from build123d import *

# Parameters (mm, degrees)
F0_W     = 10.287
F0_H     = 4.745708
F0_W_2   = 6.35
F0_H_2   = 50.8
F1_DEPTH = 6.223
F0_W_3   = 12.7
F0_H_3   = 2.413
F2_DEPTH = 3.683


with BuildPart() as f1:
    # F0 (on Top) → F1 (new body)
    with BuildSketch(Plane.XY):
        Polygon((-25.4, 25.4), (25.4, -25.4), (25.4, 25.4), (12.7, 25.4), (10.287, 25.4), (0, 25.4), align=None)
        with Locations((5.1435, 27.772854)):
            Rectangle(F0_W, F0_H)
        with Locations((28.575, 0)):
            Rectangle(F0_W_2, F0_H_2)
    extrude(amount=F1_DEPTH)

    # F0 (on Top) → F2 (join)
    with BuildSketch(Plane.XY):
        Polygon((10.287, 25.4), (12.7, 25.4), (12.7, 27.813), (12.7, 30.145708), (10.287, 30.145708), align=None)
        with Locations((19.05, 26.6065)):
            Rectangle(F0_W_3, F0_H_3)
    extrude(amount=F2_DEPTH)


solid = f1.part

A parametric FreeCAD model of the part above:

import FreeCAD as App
import Part
import Sketcher
from FreeCAD import Vector
Q = App.Units.Quantity

doc = App.newDocument("Part")
body = doc.addObject("PartDesign::Body", "Body")

# Sketch on XY plane
sketch1 = body.newObject("Sketcher::SketchObject", "Sketch")
sketch1.AttachmentSupport = (doc.getObject("XY_Plane"), [""])
sketch1.MapMode = "FlatFace"
sketch1.addGeometry(Part.LineSegment(Vector(-25.4, 25.4, 0), Vector(25.4, -25.4, 0)), False)
sketch1.addGeometry(Part.LineSegment(Vector(25.4, -25.4, 0), Vector(31.8, -25.4, 0)), False)
sketch1.addGeometry(Part.LineSegment(Vector(31.8, -25.4, 0), Vector(31.8, 25.4, 0)), False)
sketch1.addGeometry(Part.LineSegment(Vector(31.8, 25.4, 0), Vector(10.3, 25.4, 0)), False)
sketch1.addGeometry(Part.LineSegment(Vector(10.3, 25.4, 0), Vector(10.3, 30.1, 0)), False)
sketch1.addGeometry(Part.LineSegment(Vector(10.3, 30.1, 0), Vector(0, 30.1, 0)), False)
sketch1.addGeometry(Part.LineSegment(Vector(0, 30.1, 0), Vector(0, 25.4, 0)), False)
sketch1.addGeometry(Part.LineSegment(Vector(0, 25.4, 0), Vector(-25.4, 25.4, 0)), False)
sketch1.addConstraint(Sketcher.Constraint("Coincident", 0, 2, 1, 1))
sketch1.addConstraint(Sketcher.Constraint("Coincident", 1, 2, 2, 1))
sketch1.addConstraint(Sketcher.Constraint("Coincident", 2, 2, 3, 1))
sketch1.addConstraint(Sketcher.Constraint("Coincident", 3, 2, 4, 1))
sketch1.addConstraint(Sketcher.Constraint("Coincident", 4, 2, 5, 1))
sketch1.addConstraint(Sketcher.Constraint("Coincident", 5, 2, 6, 1))
sketch1.addConstraint(Sketcher.Constraint("Coincident", 6, 2, 7, 1))
sketch1.addConstraint(Sketcher.Constraint("Coincident", 7, 2, 0, 1))
sketch1.addConstraint(Sketcher.Constraint("Horizontal", 1))
sketch1.addConstraint(Sketcher.Constraint("Vertical", 2))
sketch1.addConstraint(Sketcher.Constraint("Horizontal", 3))
sketch1.addConstraint(Sketcher.Constraint("Vertical", 4))
sketch1.addConstraint(Sketcher.Constraint("Horizontal", 5))
sketch1.addConstraint(Sketcher.Constraint("Vertical", 6))
sketch1.addConstraint(Sketcher.Constraint("Horizontal", 7))
sketch1.addConstraint(Sketcher.Constraint("Symmetric", 0, 2, 7, 2, -1, 1))
sketch1.addConstraint(Sketcher.Constraint("PointOnObject", 5, 2, -2))
sketch1.addConstraint(Sketcher.Constraint("Horizontal", 3, 2, 6, 2))
sketch1.addConstraint(Sketcher.Constraint("DistanceX", 7, 2, 7, 1, Q("1 in")))
sketch1.addConstraint(Sketcher.Constraint("DistanceY", 2, 1, 2, 2, Q("2 in")))
sketch1.addConstraint(Sketcher.Constraint("DistanceX", 1, 1, 1, 2, Q("0.25 in")))
sketch1.addConstraint(Sketcher.Constraint("DistanceX", 3, 2, 3, 1, Q("0.845 in")))
sketch1.addConstraint(Sketcher.Constraint("DistanceY", 4, 1, 4, 2, 4.745708))
pad1 = body.newObject("PartDesign::Pad", "Pad")
pad1.Profile = sketch1
pad1.Length = Q("0.245 in")

# Sketch on XY plane
sketch2 = body.newObject("Sketcher::SketchObject", "Sketch001")
sketch2.AttachmentSupport = (doc.getObject("XY_Plane"), [""])
sketch2.MapMode = "FlatFace"
sketch2.addGeometry(Part.LineSegment(Vector(10.3, 25.4, 0), Vector(25.4, 25.4, 0)), False)
sketch2.addGeometry(Part.LineSegment(Vector(25.4, 25.4, 0), Vector(25.4, 27.8, 0)), False)
sketch2.addGeometry(Part.LineSegment(Vector(25.4, 27.8, 0), Vector(12.7, 27.8, 0)), False)
sketch2.addGeometry(Part.LineSegment(Vector(12.7, 27.8, 0), Vector(12.7, 30.1, 0)), False)
sketch2.addGeometry(Part.LineSegment(Vector(12.7, 30.1, 0), Vector(10.3, 30.1, 0)), False)
sketch2.addGeometry(Part.LineSegment(Vector(10.3, 30.1, 0), Vector(10.3, 25.4, 0)), False)
sketch2.addConstraint(Sketcher.Constraint("Coincident", 0, 2, 1, 1))
sketch2.addConstraint(Sketcher.Constraint("Coincident", 1, 2, 2, 1))
sketch2.addConstraint(Sketcher.Constraint("Coincident", 2, 2, 3, 1))
sketch2.addConstraint(Sketcher.Constraint("Coincident", 3, 2, 4, 1))
sketch2.addConstraint(Sketcher.Constraint("Coincident", 4, 2, 5, 1))
sketch2.addConstraint(Sketcher.Constraint("Coincident", 5, 2, 0, 1))
sketch2.addConstraint(Sketcher.Constraint("Horizontal", 0))
sketch2.addConstraint(Sketcher.Constraint("Vertical", 1))
sketch2.addConstraint(Sketcher.Constraint("Horizontal", 2))
sketch2.addConstraint(Sketcher.Constraint("Vertical", 3))
sketch2.addConstraint(Sketcher.Constraint("Horizontal", 4))
sketch2.addConstraint(Sketcher.Constraint("Vertical", 5))
sketch2.addConstraint(Sketcher.Constraint("Equal", 4, 1))
sketch2.addConstraint(Sketcher.Constraint("DistanceX", 2, 2, 2, 1, Q("0.5 in")))
sketch2.addConstraint(Sketcher.Constraint("DistanceX", -1, 1, 0, 2, Q("1 in")))
sketch2.addConstraint(Sketcher.Constraint("DistanceY", -1, 1, 0, 2, Q("1 in")))
sketch2.addConstraint(Sketcher.Constraint("DistanceX", 0, 1, 0, 2, Q("0.595 in")))
sketch2.addConstraint(Sketcher.Constraint("DistanceY", 3, 1, 3, 2, 2.332708))
pad2 = body.newObject("PartDesign::Pad", "Pad001")
pad2.Profile = sketch2
pad2.Length = Q("0.145 in")

doc.recompute()
